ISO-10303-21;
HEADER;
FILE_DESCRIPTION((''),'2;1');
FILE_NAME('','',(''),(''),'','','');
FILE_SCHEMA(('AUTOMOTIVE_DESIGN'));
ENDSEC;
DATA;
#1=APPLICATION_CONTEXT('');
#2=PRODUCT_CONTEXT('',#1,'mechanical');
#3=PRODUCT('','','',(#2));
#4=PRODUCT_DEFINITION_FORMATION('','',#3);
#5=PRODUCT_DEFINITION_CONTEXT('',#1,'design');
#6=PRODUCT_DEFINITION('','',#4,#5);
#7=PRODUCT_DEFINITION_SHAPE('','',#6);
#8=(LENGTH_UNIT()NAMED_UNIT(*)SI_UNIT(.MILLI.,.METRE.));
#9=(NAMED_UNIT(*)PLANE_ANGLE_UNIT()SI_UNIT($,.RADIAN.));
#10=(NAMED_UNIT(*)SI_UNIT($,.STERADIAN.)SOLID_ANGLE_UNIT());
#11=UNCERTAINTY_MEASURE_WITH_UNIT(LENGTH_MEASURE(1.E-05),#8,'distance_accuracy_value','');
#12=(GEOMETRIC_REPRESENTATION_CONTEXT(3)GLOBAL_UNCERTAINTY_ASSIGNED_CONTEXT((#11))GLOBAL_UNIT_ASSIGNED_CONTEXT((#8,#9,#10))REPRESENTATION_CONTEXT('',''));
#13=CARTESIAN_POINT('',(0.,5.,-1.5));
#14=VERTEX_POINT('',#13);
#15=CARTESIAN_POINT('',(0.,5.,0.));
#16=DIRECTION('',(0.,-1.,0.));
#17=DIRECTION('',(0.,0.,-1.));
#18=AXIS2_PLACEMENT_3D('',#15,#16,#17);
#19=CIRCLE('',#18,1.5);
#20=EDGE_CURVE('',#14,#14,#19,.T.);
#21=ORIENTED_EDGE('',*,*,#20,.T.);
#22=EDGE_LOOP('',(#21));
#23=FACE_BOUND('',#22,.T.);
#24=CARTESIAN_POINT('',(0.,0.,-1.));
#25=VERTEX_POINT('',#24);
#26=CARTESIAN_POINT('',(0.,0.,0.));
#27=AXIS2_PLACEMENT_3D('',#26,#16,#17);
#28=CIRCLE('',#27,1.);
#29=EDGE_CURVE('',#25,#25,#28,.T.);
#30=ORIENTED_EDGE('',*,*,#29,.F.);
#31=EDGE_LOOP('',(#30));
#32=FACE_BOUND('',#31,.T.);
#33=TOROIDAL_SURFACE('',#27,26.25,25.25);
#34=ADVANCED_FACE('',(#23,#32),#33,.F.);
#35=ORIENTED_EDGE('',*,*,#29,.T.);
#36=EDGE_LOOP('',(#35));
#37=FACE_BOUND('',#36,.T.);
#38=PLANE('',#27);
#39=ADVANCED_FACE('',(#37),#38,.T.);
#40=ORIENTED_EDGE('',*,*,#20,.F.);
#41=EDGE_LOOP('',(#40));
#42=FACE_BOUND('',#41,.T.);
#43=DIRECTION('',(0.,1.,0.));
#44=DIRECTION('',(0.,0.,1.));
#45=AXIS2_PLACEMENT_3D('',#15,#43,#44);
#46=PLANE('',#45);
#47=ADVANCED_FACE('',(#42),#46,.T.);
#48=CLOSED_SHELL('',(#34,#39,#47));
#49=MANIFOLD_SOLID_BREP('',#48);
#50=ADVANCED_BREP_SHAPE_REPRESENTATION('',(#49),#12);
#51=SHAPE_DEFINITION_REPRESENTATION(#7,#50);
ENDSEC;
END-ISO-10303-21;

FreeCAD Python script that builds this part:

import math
import FreeCAD as App
import Part
import Sketcher
Q = App.Units.Quantity

doc = App.newDocument("Part")
body = doc.addObject("PartDesign::Body", "Body")

sketch1 = body.newObject("Sketcher::SketchObject", "Sketch")
sketch1.AttachmentSupport = (doc.getObject("XY_Plane"), [""])
sketch1.MapMode = "FlatFace"
sketch1.addGeometry(Part.LineSegment(App.Vector(0, 5, 0), App.Vector(0, 0, 0)), False)
sketch1.addGeometry(Part.LineSegment(App.Vector(0, 0, 0), App.Vector(1, 0, 0)), False)
sketch1.addGeometry(Part.ArcOfCircle(Part.Circle(App.Vector(26.25, 0, 0), App.Vector(0, 0, 1), 25.25), math.radians(168.578814), math.radians(180)), False)
sketch1.addGeometry(Part.LineSegment(App.Vector(1.5, 5, 0), App.Vector(0, 5, 0)), False)
sketch1.addConstraint(Sketcher.Constraint("Coincident", 0, 2, 1, 1))
sketch1.addConstraint(Sketcher.Constraint("Coincident", 1, 2, 2, 2))
sketch1.addConstraint(Sketcher.Constraint("Coincident", 2, 1, 3, 1))
sketch1.addConstraint(Sketcher.Constraint("Coincident", 3, 2, 0, 1))
sketch1.addConstraint(Sketcher.Constraint("Vertical", 0))
sketch1.addConstraint(Sketcher.Constraint("Horizontal", 1))
sketch1.addConstraint(Sketcher.Constraint("Horizontal", 3))
sketch1.addConstraint(Sketcher.Constraint("Coincident", 0, 2, -1, 1))
sketch1.addConstraint(Sketcher.Constraint("PointOnObject", 2, 3, -1))
sketch1.addConstraint(Sketcher.Constraint("DistanceX", 1, 1, 1, 2, Q("1 mm")))
sketch1.addConstraint(Sketcher.Constraint("DistanceY", 0, 2, 0, 1, Q("5 mm")))
sketch1.addConstraint(Sketcher.Constraint("Radius", 2, Q("25.25 mm")))
revolution = body.newObject("PartDesign::Revolution", "Revolution")
revolution.Profile = sketch1
revolution.ReferenceAxis = (sketch1, ["V_Axis"])
revolution.Angle = 360

doc.recompute()
